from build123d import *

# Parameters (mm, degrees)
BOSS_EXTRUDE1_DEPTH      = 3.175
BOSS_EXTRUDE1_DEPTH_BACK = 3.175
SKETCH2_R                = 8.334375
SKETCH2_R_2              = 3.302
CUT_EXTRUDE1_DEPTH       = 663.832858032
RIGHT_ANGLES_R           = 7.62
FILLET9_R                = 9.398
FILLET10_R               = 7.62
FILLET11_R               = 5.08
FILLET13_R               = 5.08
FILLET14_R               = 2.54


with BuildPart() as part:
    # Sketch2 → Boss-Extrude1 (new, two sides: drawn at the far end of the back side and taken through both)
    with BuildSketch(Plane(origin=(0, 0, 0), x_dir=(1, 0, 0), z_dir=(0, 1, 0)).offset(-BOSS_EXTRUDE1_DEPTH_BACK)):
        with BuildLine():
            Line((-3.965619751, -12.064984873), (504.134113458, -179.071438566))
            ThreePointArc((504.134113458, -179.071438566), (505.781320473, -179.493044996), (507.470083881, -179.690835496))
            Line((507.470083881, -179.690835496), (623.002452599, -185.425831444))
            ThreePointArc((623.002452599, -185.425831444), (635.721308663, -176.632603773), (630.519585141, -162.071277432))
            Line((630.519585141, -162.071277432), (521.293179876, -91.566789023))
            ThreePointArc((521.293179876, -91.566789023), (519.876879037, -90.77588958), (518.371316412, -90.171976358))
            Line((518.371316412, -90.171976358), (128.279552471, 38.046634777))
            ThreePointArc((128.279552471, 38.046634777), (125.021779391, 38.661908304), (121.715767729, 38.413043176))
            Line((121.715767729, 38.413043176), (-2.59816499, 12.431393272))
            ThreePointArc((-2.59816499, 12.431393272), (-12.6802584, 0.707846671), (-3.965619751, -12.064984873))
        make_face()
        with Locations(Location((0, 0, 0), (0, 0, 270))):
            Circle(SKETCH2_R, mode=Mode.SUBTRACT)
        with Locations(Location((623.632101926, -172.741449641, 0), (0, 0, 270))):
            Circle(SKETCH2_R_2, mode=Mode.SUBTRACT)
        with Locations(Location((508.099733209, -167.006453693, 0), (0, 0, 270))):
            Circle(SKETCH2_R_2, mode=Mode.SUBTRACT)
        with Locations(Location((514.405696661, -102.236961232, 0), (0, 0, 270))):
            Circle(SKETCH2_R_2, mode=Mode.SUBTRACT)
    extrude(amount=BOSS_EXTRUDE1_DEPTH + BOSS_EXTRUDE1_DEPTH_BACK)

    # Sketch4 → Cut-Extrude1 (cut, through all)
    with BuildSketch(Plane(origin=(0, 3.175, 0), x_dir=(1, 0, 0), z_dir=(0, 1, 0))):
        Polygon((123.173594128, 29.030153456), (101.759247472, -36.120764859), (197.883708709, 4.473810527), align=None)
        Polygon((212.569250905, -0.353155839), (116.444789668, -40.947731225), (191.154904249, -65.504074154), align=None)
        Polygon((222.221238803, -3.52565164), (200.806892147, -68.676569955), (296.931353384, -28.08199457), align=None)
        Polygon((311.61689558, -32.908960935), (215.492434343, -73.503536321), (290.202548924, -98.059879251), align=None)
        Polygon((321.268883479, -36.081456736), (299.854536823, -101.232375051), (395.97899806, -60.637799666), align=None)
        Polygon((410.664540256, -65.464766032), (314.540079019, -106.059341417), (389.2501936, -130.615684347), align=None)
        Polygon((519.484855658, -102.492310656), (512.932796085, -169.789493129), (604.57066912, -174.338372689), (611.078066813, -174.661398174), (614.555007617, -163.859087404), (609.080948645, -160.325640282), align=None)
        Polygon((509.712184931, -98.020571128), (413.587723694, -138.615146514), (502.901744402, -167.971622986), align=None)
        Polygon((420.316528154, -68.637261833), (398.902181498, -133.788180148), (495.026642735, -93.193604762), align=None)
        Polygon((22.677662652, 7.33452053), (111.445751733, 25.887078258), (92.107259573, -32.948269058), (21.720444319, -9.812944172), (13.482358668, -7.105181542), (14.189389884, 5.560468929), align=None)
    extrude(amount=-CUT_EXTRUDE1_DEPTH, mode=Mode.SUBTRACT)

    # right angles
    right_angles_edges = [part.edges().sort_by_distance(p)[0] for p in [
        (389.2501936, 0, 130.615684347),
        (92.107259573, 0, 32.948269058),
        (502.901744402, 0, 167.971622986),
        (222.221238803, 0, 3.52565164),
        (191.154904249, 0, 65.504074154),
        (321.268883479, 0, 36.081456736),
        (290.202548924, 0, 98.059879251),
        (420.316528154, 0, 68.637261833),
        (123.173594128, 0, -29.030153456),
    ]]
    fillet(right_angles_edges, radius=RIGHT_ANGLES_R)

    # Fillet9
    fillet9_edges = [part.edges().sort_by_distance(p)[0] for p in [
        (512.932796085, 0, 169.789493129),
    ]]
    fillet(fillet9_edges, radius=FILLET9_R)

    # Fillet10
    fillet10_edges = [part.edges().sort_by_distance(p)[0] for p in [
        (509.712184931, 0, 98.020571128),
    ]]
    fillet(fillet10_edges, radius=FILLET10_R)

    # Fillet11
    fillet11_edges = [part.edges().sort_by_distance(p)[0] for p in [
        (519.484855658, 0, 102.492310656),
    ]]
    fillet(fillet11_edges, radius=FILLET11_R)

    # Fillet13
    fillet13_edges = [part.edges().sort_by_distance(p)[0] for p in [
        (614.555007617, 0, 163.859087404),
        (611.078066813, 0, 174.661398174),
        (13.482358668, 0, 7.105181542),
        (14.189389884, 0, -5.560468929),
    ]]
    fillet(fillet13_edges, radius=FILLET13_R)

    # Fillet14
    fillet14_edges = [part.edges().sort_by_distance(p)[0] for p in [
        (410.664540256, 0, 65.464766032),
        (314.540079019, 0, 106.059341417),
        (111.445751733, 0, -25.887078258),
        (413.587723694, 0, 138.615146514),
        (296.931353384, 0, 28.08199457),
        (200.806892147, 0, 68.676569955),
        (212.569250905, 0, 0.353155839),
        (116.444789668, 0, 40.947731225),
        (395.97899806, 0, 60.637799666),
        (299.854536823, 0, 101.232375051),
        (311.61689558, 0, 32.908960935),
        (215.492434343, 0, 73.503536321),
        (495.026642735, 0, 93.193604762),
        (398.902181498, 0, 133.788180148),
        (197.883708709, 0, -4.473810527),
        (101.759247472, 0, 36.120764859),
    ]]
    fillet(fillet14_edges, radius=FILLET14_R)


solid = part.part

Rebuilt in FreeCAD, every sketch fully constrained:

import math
import FreeCAD as App
import Part
import Sketcher

V = App.Vector
Q = App.Units.Quantity


def edges_at(feature, points):
    """Names of the edges that pass closest to the given points."""
    edges = feature.Shape.Edges
    near = lambda p: min(range(len(edges)), key=lambda i: edges[i].distToShape(Part.Vertex(*p))[0])
    return sorted({f"Edge{near(p) + 1}" for p in points})


def add_polygon(sketch, points):
    """Adds a closed chain of lines whose ends are joined by coincident constraints."""
    first, n = sketch.GeometryCount, len(points)
    for a, b in zip(points, points[1:] + points[:1]):
        sketch.addGeometry(Part.LineSegment(App.Vector(*a, 0), App.Vector(*b, 0)), False)
    for i in range(n):
        sketch.addConstraint(Sketcher.Constraint("Coincident", first + i, 2, first + (i + 1) % n, 1))

doc = App.newDocument("Part")
body = doc.addObject("PartDesign::Body", "Body")

sketch1 = body.newObject("Sketcher::SketchObject", "Sketch")
sketch1.AttachmentSupport = (doc.getObject("XZ_Plane"), [""])
sketch1.MapMode = "FlatFace"
sketch1.addGeometry(Part.LineSegment(V(-4, 12.1, 0), V(504.1, 179.1, 0)), False)
sketch1.addGeometry(Part.ArcOfCircle(Part.Circle(V(508.1, 167, 0), V(0, 0, 1), 12.7), math.radians(92.84), math.radians(108.2)), False)
sketch1.addGeometry(Part.LineSegment(V(507.5, 179.7, 0), V(623, 185.4, 0)), False)
sketch1.addGeometry(Part.ArcOfCircle(Part.Circle(V(623.6, 172.7, 0), V(0, 0, 1), 12.7), math.radians(-57), math.radians(93)), False)
sketch1.addGeometry(Part.LineSegment(V(630.5, 162.1, 0), V(521.3, 91.6, 0)), False)
sketch1.addGeometry(Part.ArcOfCircle(Part.Circle(V(514.4, 102.2, 0), V(0, 0, 1), 12.7), math.radians(-71.8), math.radians(-57.16)), False)
sketch1.addGeometry(Part.LineSegment(V(518.4, 90.2, 0), V(128.3, -38, 0)), False)
sketch1.addGeometry(Part.ArcOfCircle(Part.Circle(V(124.3, -26, 0), V(0, 0, 1), 12.7), math.radians(-102), math.radians(-72)), False)
sketch1.addGeometry(Part.LineSegment(V(121.7, -38.4, 0), V(-2.6, -12.4, 0)), False)
sketch1.addGeometry(Part.ArcOfCircle(Part.Circle(V(0, 0, 0), V(0, 0, 1), 12.7), math.radians(108), math.radians(258)), False)
sketch1.addGeometry(Part.Circle(V(508.1, 167, 0), V(0, 0, 1), 3.3), False)
sketch1.addGeometry(Part.Circle(V(623.6, 172.7, 0), V(0, 0, 1), 3.3), False)
sketch1.addGeometry(Part.Circle(V(514.4, 102.2, 0), V(0, 0, 1), 3.3), False)
sketch1.addGeometry(Part.Circle(V(0, 0, 0), V(0, 0, 1), 8.3), False)
sketch1.addConstraint(Sketcher.Constraint("Tangent", 0, 2, 1, 2))
sketch1.addConstraint(Sketcher.Constraint("Tangent", 1, 1, 2, 1))
sketch1.addConstraint(Sketcher.Constraint("Tangent", 2, 2, 3, 2))
sketch1.addConstraint(Sketcher.Constraint("Tangent", 3, 1, 4, 1))
sketch1.addConstraint(Sketcher.Constraint("Tangent", 4, 2, 5, 2))
sketch1.addConstraint(Sketcher.Constraint("Tangent", 5, 1, 6, 1))
sketch1.addConstraint(Sketcher.Constraint("Tangent", 6, 2, 7, 2))
sketch1.addConstraint(Sketcher.Constraint("Tangent", 7, 1, 8, 1))
sketch1.addConstraint(Sketcher.Constraint("Tangent", 8, 2, 9, 2))
sketch1.addConstraint(Sketcher.Constraint("Tangent", 9, 1, 0, 1))
sketch1.addConstraint(Sketcher.Constraint("Coincident", 9, 3, -1, 1))
sketch1.addConstraint(Sketcher.Constraint("Coincident", 13, 3, -1, 1))
sketch1.addConstraint(Sketcher.Constraint("Coincident", 10, 3, 1, 3))
sketch1.addConstraint(Sketcher.Constraint("Coincident", 11, 3, 3, 3))
sketch1.addConstraint(Sketcher.Constraint("Coincident", 12, 3, 5, 3))
sketch1.addConstraint(Sketcher.Constraint("Equal", 1, 3))
sketch1.addConstraint(Sketcher.Constraint("Equal", 3, 5))
sketch1.addConstraint(Sketcher.Constraint("Equal", 5, 7))
sketch1.addConstraint(Sketcher.Constraint("Equal", 7, 9))
sketch1.addConstraint(Sketcher.Constraint("Equal", 10, 11))
sketch1.addConstraint(Sketcher.Constraint("Equal", 11, 12))
sketch1.addConstraint(Sketcher.Constraint("Parallel", 0, 6))
sketch1.addConstraint(Sketcher.Constraint("Radius", 1, Q("0.5 in")))
sketch1.addConstraint(Sketcher.Constraint("Diameter", 10, Q("0.26 in")))
sketch1.addConstraint(Sketcher.Constraint("Distance", 8, Q("5 in")))
sketch1.addConstraint(Sketcher.Constraint("Diameter", 13, Q("0.65625 in")))
sketch1.addConstraint(Sketcher.Constraint("DistanceX", -1, 1, 3, 3, 623.632102))
sketch1.addConstraint(Sketcher.Constraint("DistanceX", 7, 3, 1, 3, 383.785801))
sketch1.addConstraint(Sketcher.Constraint("DistanceY", 7, 3, 3, 3, 198.7231))
sketch1.addConstraint(Sketcher.Constraint("DistanceY", -1, 1, 3, 3, 172.74145))
sketch1.addConstraint(Sketcher.Constraint("DistanceY", -1, 1, 5, 3, 102.236961))
sketch1.addConstraint(Sketcher.Constraint("DistanceY", -1, 1, 0, 2, 179.071439))
pad1 = body.newObject("PartDesign::Pad", "Pad")
pad1.Profile = sketch1
pad1.Type = "TwoLengths"
pad1.Length = Q("0.125 in")
pad1.Length2 = Q("0.125 in")
pad1.Reversed = True

sketch2 = body.newObject("Sketcher::SketchObject", "Sketch001")
sketch2.AttachmentSupport = (doc.getObject("XZ_Plane"), [""])
sketch2.MapMode = "FlatFace"
sketch2.AttachmentOffset = App.Placement(V(0, 0, -0.125 * 25.4), App.Rotation())
add_polygon(sketch2, [(123, -29), (102, 36), (198, -4)])
add_polygon(sketch2, [(213, 0), (116, 41), (191, 66)])
add_polygon(sketch2, [(222, 4), (201, 69), (297, 28)])
add_polygon(sketch2, [(312, 33), (215, 74), (290, 98)])
add_polygon(sketch2, [(321, 36), (300, 101), (396, 61)])
add_polygon(sketch2, [(411, 65), (315, 106), (389, 131)])
add_polygon(sketch2, [(519, 102), (513, 170), (605, 174), (611, 175), (615, 164), (609, 160)])
add_polygon(sketch2, [(510, 98), (414, 139), (503, 168)])
add_polygon(sketch2, [(420, 69), (399, 134), (495, 93)])
add_polygon(sketch2, [(111, -26), (23, -7), (14, -6), (13, 7), (22, 10), (92, 33)])
sketch2.addConstraint(Sketcher.Constraint("Perpendicular", 0, 2))
sketch2.addConstraint(Sketcher.Constraint("Parallel", 1, 3))
sketch2.addConstraint(Sketcher.Constraint("Parallel", 2, 4))
sketch2.addConstraint(Sketcher.Constraint("Perpendicular", 4, 5))
sketch2.addConstraint(Sketcher.Constraint("Parallel", 5, 6))
sketch2.addConstraint(Sketcher.Constraint("Parallel", 3, 7))
sketch2.addConstraint(Sketcher.Constraint("Perpendicular", 6, 8))
sketch2.addConstraint(Sketcher.Constraint("Parallel", 7, 9))
sketch2.addConstraint(Sketcher.Constraint("Parallel", 8, 10))
sketch2.addConstraint(Sketcher.Constraint("Perpendicular", 10, 11))
sketch2.addConstraint(Sketcher.Constraint("Parallel", 11, 12))
sketch2.addConstraint(Sketcher.Constraint("Parallel", 9, 13))
sketch2.addConstraint(Sketcher.Constraint("Perpendicular", 12, 14))
sketch2.addConstraint(Sketcher.Constraint("Parallel", 13, 15))
sketch2.addConstraint(Sketcher.Constraint("Parallel", 14, 16))
sketch2.addConstraint(Sketcher.Constraint("Perpendicular", 16, 17))
sketch2.addConstraint(Sketcher.Constraint("Parallel", 19, 20))
sketch2.addConstraint(Sketcher.Constraint("Parallel", 22, 23))
sketch2.addConstraint(Sketcher.Constraint("Parallel", 15, 24))
sketch2.addConstraint(Sketcher.Constraint("Perpendicular", 17, 25))
sketch2.addConstraint(Sketcher.Constraint("Parallel", 18, 26))
sketch2.addConstraint(Sketcher.Constraint("Perpendicular", 25, 27))
sketch2.addConstraint(Sketcher.Constraint("Parallel", 24, 28))
sketch2.addConstraint(Sketcher.Constraint("Perpendicular", 27, 29))
sketch2.addConstraint(Sketcher.Constraint("Parallel", 30, 31))
sketch2.addConstraint(Sketcher.Constraint("Parallel", 29, 33))
sketch2.addConstraint(Sketcher.Constraint("Parallel", 33, 34))
sketch2.addConstraint(Sketcher.Constraint("Perpendicular", 34, 35))
sketch2.addConstraint(Sketcher.Constraint("Equal", 1, 3))
sketch2.addConstraint(Sketcher.Constraint("Equal", 5, 6))
sketch2.addConstraint(Sketcher.Constraint("Equal", 7, 9))
sketch2.addConstraint(Sketcher.Constraint("Equal", 11, 12))
sketch2.addConstraint(Sketcher.Constraint("Equal", 13, 15))
sketch2.addConstraint(Sketcher.Constraint("Equal", 20, 22))
sketch2.addConstraint(Sketcher.Constraint("Equal", 15, 24))
sketch2.addConstraint(Sketcher.Constraint("Equal", 17, 27))
sketch2.addConstraint(Sketcher.Constraint("Equal", 31, 33))
sketch2.addConstraint(Sketcher.Constraint("Distance", 0, Q("2.7 in")))
sketch2.addConstraint(Sketcher.Constraint("Distance", 26, Q("2.7670001 in")))
sketch2.addConstraint(Sketcher.Constraint("DistanceY", 22, 2, 20, 2, Q("0.5643999 in")))
sketch2.addConstraint(Sketcher.Constraint("DistanceX", 24, 2, 25, 2, Q("3.5163 in")))
sketch2.addConstraint(Sketcher.Constraint("Distance", 23, 106.640301))
sketch2.addConstraint(Sketcher.Constraint("DistanceX", -1, 1, 13, 2, 395.978998))
sketch2.addConstraint(Sketcher.Constraint("DistanceY", -1, 1, 13, 2, 60.6378))
sketch2.addConstraint(Sketcher.Constraint("DistanceY", -1, 1, 20, 2, 174.661398))
sketch2.addConstraint(Sketcher.Constraint("DistanceX", 13, 2, 18, 2, 116.953798))
sketch2.addConstraint(Sketcher.Constraint("DistanceX", 28, 2, 25, 2, 7.875102))
sketch2.addConstraint(Sketcher.Constraint("DistanceX", 31, 2, 3, 2, 102.2554))
sketch2.addConstraint(Sketcher.Constraint("DistanceY", 31, 2, 3, 2, 46.5082))
sketch2.addConstraint(Sketcher.Constraint("Distance", 20, 6.51541))
sketch2.addConstraint(Sketcher.Constraint("Distance", 31, 8.67168))
sketch2.addConstraint(Sketcher.Constraint("Distance", 32, 12.685369))
sketch2.addConstraint(Sketcher.Constraint("DistanceX", -1, 1, 1, 2, 197.883709))
sketch2.addConstraint(Sketcher.Constraint("DistanceY", 1, 2, -1, 1, 4.473811))
sketch2.addConstraint(Sketcher.Constraint("DistanceX", -1, 1, 3, 2, 116.44479))
sketch2.addConstraint(Sketcher.Constraint("DistanceY", -1, 1, 3, 2, 40.947731))
sketch2.addConstraint(Sketcher.Constraint("DistanceX", -1, 1, 5, 2, 212.569251))
sketch2.addConstraint(Sketcher.Constraint("DistanceY", -1, 1, 6, 2, 68.67657))
sketch2.addConstraint(Sketcher.Constraint("DistanceX", -1, 1, 8, 2, 222.221239))
sketch2.addConstraint(Sketcher.Constraint("DistanceX", -1, 1, 10, 2, 290.202549))
sketch2.addConstraint(Sketcher.Constraint("DistanceY", -1, 1, 10, 2, 98.059879))
sketch2.addConstraint(Sketcher.Constraint("DistanceX", -1, 1, 15, 2, 314.540079))
sketch2.addConstraint(Sketcher.Constraint("DistanceY", -1, 1, 15, 2, 106.059341))
sketch2.addConstraint(Sketcher.Constraint("DistanceX", -1, 1, 19, 2, 604.570669))
sketch2.addConstraint(Sketcher.Constraint("DistanceX", -1, 1, 22, 2, 609.080949))
sketch2.addConstraint(Sketcher.Constraint("DistanceY", -1, 1, 23, 2, 102.492311))
sketch2.addConstraint(Sketcher.Constraint("DistanceY", -1, 1, 26, 2, 98.020571))
sketch2.addConstraint(Sketcher.Constraint("DistanceX", -1, 1, 27, 2, 398.902181))
sketch2.addConstraint(Sketcher.Constraint("DistanceY", -1, 1, 27, 2, 133.78818))
sketch2.addConstraint(Sketcher.Constraint("DistanceY", 30, 2, -1, 1, 7.334521))
sketch2.addConstraint(Sketcher.Constraint("DistanceX", -1, 1, 32, 2, 13.482359))
sketch2.addConstraint(Sketcher.Constraint("DistanceX", -1, 1, 34, 2, 92.10726))
pocket1 = body.newObject("PartDesign::Pocket", "Pocket")
pocket1.Profile = sketch2
pocket1.Type = "ThroughAll"
pocket1.Reversed = True
doc.recompute()

fillet = body.newObject("PartDesign::Fillet", "Fillet")
fillet.Base = (pocket1, edges_at(pocket1, [
    (389.25, 0, 130.616),
    (92.107, 0, 32.948),
    (502.902, 0, 167.972),
    (222.221, 0, 3.526),
    (191.155, 0, 65.504),
    (321.269, 0, 36.081),
    (290.203, 0, 98.06),
    (420.317, 0, 68.637),
    (123.174, 0, -29.03),
]))
fillet.Radius = Q("0.3 in")
doc.recompute()

fillet2 = body.newObject("PartDesign::Fillet", "Fillet001")
fillet2.Base = (fillet, edges_at(fillet, [(512.933, 0, 169.789)]))
fillet2.Radius = Q("0.37 in")
doc.recompute()

fillet3 = body.newObject("PartDesign::Fillet", "Fillet002")
fillet3.Base = (fillet2, edges_at(fillet2, [(509.712, 0, 98.021)]))
fillet3.Radius = Q("0.3 in")
doc.recompute()

fillet4 = body.newObject("PartDesign::Fillet", "Fillet003")
fillet4.Base = (fillet3, edges_at(fillet3, [(519.485, 0, 102.492)]))
fillet4.Radius = Q("0.2 in")
doc.recompute()

fillet5 = body.newObject("PartDesign::Fillet", "Fillet004")
fillet5.Base = (fillet4, edges_at(fillet4, [
    (614.555, 0, 163.859),
    (611.078, 0, 174.661),
    (13.482, 0, 7.105),
    (14.189, 0, -5.56),
]))
fillet5.Radius = Q("0.2 in")
doc.recompute()

fillet6 = body.newObject("PartDesign::Fillet", "Fillet005")
fillet6.Base = (fillet5, edges_at(fillet5, [
    (410.665, 0, 65.465),
    (314.54, 0, 106.059),
    (111.446, 0, -25.887),
    (413.588, 0, 138.615),
    (296.931, 0, 28.082),
    (200.807, 0, 68.677),
    (212.569, 0, 0.353),
    (116.445, 0, 40.948),
    (395.979, 0, 60.638),
    (299.855, 0, 101.232),
    (311.617, 0, 32.909),
    (215.492, 0, 73.504),
    (495.027, 0, 93.194),
    (398.902, 0, 133.788),
    (197.884, 0, -4.474),
    (101.759, 0, 36.121),
]))
fillet6.Radius = Q("0.1 in")

doc.recompute()
